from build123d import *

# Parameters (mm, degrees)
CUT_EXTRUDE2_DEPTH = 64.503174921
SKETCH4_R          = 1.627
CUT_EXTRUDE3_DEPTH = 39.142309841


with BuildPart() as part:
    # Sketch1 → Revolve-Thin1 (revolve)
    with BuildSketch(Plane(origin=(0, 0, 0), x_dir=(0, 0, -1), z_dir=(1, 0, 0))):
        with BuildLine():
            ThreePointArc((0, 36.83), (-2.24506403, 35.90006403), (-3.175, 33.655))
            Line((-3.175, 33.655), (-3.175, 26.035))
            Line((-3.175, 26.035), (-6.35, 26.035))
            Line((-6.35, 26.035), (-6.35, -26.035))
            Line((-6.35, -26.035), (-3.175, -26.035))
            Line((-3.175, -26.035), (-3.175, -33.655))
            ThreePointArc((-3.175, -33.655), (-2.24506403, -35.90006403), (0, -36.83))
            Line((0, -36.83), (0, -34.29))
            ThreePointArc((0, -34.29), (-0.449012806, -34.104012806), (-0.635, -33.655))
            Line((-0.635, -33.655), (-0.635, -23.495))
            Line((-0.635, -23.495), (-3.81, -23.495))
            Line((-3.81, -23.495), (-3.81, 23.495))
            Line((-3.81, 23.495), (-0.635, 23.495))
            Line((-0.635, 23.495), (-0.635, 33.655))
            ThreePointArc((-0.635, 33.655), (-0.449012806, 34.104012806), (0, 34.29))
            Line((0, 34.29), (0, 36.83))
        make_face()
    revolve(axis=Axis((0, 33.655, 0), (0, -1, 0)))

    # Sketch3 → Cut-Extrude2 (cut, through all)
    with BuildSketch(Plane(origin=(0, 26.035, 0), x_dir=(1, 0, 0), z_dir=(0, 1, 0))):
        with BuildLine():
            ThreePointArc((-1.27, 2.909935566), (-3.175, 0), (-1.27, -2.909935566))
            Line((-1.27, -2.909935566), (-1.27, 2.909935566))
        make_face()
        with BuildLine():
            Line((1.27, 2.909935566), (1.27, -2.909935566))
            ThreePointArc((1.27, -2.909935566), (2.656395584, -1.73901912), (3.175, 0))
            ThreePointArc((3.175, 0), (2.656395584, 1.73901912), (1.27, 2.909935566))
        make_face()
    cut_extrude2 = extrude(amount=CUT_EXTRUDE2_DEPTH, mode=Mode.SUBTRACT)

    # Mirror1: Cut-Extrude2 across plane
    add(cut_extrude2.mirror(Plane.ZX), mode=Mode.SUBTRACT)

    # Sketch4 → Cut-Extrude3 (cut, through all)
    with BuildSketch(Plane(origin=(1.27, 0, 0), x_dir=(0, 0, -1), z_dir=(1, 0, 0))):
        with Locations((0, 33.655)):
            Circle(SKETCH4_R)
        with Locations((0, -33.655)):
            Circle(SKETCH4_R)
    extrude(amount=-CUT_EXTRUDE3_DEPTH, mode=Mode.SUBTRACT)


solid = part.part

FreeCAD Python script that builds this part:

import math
import FreeCAD as App
import Part
import Sketcher
from FreeCAD import Vector
Q = App.Units.Quantity

doc = App.newDocument("Part")
body = doc.addObject("PartDesign::Body", "Body")

# Sketch on YZ plane
sketch1 = body.newObject("Sketcher::SketchObject", "Sketch")
sketch1.AttachmentSupport = (doc.getObject("YZ_Plane"), [""])
sketch1.MapMode = "FlatFace"
sketch1.addGeometry([
    Part.ArcOfCircle(Part.Circle(Vector(33.655, 0, 0), Vector(0, 0, 1), 3.175), math.radians(0), math.radians(90)),  # 0
    Part.LineSegment(Vector(33.655, 3.175, 0), Vector(26.035, 3.175, 0)),  # 1
    Part.LineSegment(Vector(26.035, 3.175, 0), Vector(26.035, 6.35, 0)),  # 2
    Part.LineSegment(Vector(26.035, 6.35, 0), Vector(-26.035, 6.35, 0)),  # 3
    Part.LineSegment(Vector(-26.035, 6.35, 0), Vector(-26.035, 3.175, 0)),  # 4
    Part.LineSegment(Vector(-26.035, 3.175, 0), Vector(-33.655, 3.175, 0)),  # 5
    Part.ArcOfCircle(Part.Circle(Vector(-33.655, 0, 0), Vector(0, 0, 1), 3.175), math.radians(90), math.radians(180)),  # 6
    Part.LineSegment(Vector(-36.83, 0, 0), Vector(-34.29, 0, 0)),  # 7
    Part.ArcOfCircle(Part.Circle(Vector(-33.655, 0, 0), Vector(0, 0, 1), 0.635), math.radians(90), math.radians(180)),  # 8
    Part.LineSegment(Vector(-33.655, 0.635, 0), Vector(-23.495, 0.635, 0)),  # 9
    Part.LineSegment(Vector(-23.495, 0.635, 0), Vector(-23.495, 3.81, 0)),  # 10
    Part.LineSegment(Vector(-23.495, 3.81, 0), Vector(23.495, 3.81, 0)),  # 11
    Part.LineSegment(Vector(23.495, 3.81, 0), Vector(23.495, 0.635, 0)),  # 12
    Part.LineSegment(Vector(23.495, 0.635, 0), Vector(33.655, 0.635, 0)),  # 13
    Part.ArcOfCircle(Part.Circle(Vector(33.655, 0, 0), Vector(0, 0, 1), 0.635), math.radians(0), math.radians(90)),  # 14
    Part.LineSegment(Vector(34.29, 0, 0), Vector(36.83, 0, 0)),  # 15
], False)
sketch1.addConstraint([
    Sketcher.Constraint("Tangent", 0, 2, 1, 1),
    Sketcher.Constraint("Coincident", 1, 2, 2, 1),
    Sketcher.Constraint("Coincident", 2, 2, 3, 1),
    Sketcher.Constraint("Coincident", 3, 2, 4, 1),
    Sketcher.Constraint("Coincident", 4, 2, 5, 1),
    Sketcher.Constraint("Tangent", 5, 2, 6, 1),
    Sketcher.Constraint("Coincident", 6, 2, 7, 1),
    Sketcher.Constraint("Coincident", 7, 2, 8, 2),
    Sketcher.Constraint("Tangent", 8, 1, 9, 1),
    Sketcher.Constraint("Coincident", 9, 2, 10, 1),
    Sketcher.Constraint("Coincident", 10, 2, 11, 1),
    Sketcher.Constraint("Coincident", 11, 2, 12, 1),
    Sketcher.Constraint("Coincident", 12, 2, 13, 1),
    Sketcher.Constraint("Tangent", 13, 2, 14, 2),
    Sketcher.Constraint("Coincident", 14, 1, 15, 1),
    Sketcher.Constraint("Coincident", 15, 2, 0, 1),
    Sketcher.Constraint("Horizontal", 1),
    Sketcher.Constraint("Vertical", 2),
    Sketcher.Constraint("Horizontal", 3),
    Sketcher.Constraint("Vertical", 4),
    Sketcher.Constraint("Horizontal", 5),
    Sketcher.Constraint("Horizontal", 7),
    Sketcher.Constraint("Horizontal", 9),
    Sketcher.Constraint("Vertical", 10),
    Sketcher.Constraint("Horizontal", 11),
    Sketcher.Constraint("Vertical", 12),
    Sketcher.Constraint("Horizontal", 13),
    Sketcher.Constraint("Horizontal", 15),
    Sketcher.Constraint("Coincident", 8, 3, 6, 3),
    Sketcher.Constraint("Coincident", 14, 3, 0, 3),
    Sketcher.Constraint("Equal", 0, 6),
    Sketcher.Constraint("Equal", 8, 14),
    Sketcher.Constraint("Symmetric", 0, 3, 6, 3, -1, 1),
    Sketcher.Constraint("Symmetric", 1, 2, 4, 2, -2),
    Sketcher.Constraint("PointOnObject", 6, 2, -1),
    Sketcher.Constraint("PointOnObject", 14, 1, -1),
    Sketcher.Constraint("Equal", 9, 13),
    Sketcher.Constraint("Equal", 4, 10),
    Sketcher.Constraint("DistanceX", 1, 2, 1, 1, Q("0.3 in")),
    Sketcher.Constraint("DistanceX", 7, 1, 7, 2, Q("0.1 in")),
    Sketcher.Constraint("DistanceX", 9, 1, 9, 2, Q("0.4 in")),
    Sketcher.Constraint("Radius", 0, Q("0.125 in")),
    Sketcher.Constraint("DistanceX", 3, 2, 3, 1, Q("2.05 in")),
    Sketcher.Constraint("DistanceY", 2, 1, 2, 2, Q("0.125 in")),
])
revolution = body.newObject("PartDesign::Revolution", "Revolution")
revolution.Profile = sketch1
revolution.ReferenceAxis = (sketch1, ["H_Axis"])
revolution.Angle = 360

# Sketch on XZ plane
sketch2 = body.newObject("Sketcher::SketchObject", "Sketch001")
sketch2.AttachmentSupport = (doc.getObject("XZ_Plane"), [""])
sketch2.MapMode = "FlatFace"
sketch2.AttachmentOffset = App.Placement(Vector(0, 0, -1.025 * 25.4), App.Rotation())
sketch2.addGeometry([
    Part.ArcOfCircle(Part.Circle(Vector(0, 0, 0), Vector(0, 0, 1), 3.175), math.radians(113.578178), math.radians(246.421822)),  # 0
    Part.LineSegment(Vector(-1.27, 2.909936, 0), Vector(-1.27, -2.909936, 0)),  # 1
    Part.LineSegment(Vector(1.27, -2.909936, 0), Vector(1.27, 2.909936, 0)),  # 2
    Part.ArcOfCircle(Part.Circle(Vector(0, 0, 0), Vector(0, 0, 1), 3.175), math.radians(0), math.radians(66.421822)),  # 3
    Part.ArcOfCircle(Part.Circle(Vector(0, 0, 0), Vector(0, 0, 1), 3.175), math.radians(-66.421822), math.radians(0)),  # 4
], False)
sketch2.addConstraint([
    Sketcher.Constraint("Coincident", 0, 1, 1, 1),
    Sketcher.Constraint("Coincident", 1, 2, 0, 2),
    Sketcher.Constraint("Coincident", 2, 2, 3, 2),
    Sketcher.Constraint("Tangent", 3, 1, 4, 2),
    Sketcher.Constraint("Coincident", 4, 1, 2, 1),
    Sketcher.Constraint("Vertical", 1),
    Sketcher.Constraint("Vertical", 2),
    Sketcher.Constraint("Coincident", 0, 3, -1, 1),
    Sketcher.Constraint("Coincident", 3, 3, -1, 1),
    Sketcher.Constraint("Equal", 0, 3),
    Sketcher.Constraint("Equal", 3, 4),
    Sketcher.Constraint("PointOnObject", 3, 1, -1),
    Sketcher.Constraint("Horizontal", 0, 1, 2, 2),
    Sketcher.Constraint("Radius", 0, Q("0.125 in")),
    Sketcher.Constraint("DistanceX", 0, 1, 2, 2, Q("0.1 in")),
])
pocket1 = body.newObject("PartDesign::Pocket", "Pocket")
pocket1.Profile = sketch2
pocket1.Type = "ThroughAll"
doc.recompute()

mirrored = body.newObject("PartDesign::Mirrored", "Mirrored")
mirrored.Originals = [pocket1]
mirrored.MirrorPlane = (doc.getObject("XZ_Plane"), [""])
body.Tip = mirrored

# Sketch on YZ plane
sketch3 = body.newObject("Sketcher::SketchObject", "Sketch002")
sketch3.AttachmentSupport = (doc.getObject("YZ_Plane"), [""])
sketch3.MapMode = "FlatFace"
sketch3.AttachmentOffset = App.Placement(Vector(0, 0, 0.05 * 25.4), App.Rotation())
sketch3.addGeometry([
    Part.Circle(Vector(33.655, 0, 0), Vector(0, 0, 1), 1.627),
    Part.Circle(Vector(-33.655, 0, 0), Vector(0, 0, 1), 1.627),
], False)
sketch3.addConstraint([
    Sketcher.Constraint("Equal", 0, 1),
    Sketcher.Constraint("Symmetric", 0, 3, 1, 3, -1, 1),
    Sketcher.Constraint("PointOnObject", 0, 3, -1),
    Sketcher.Constraint("Diameter", 0, Q("3.254 mm")),
    Sketcher.Constraint("DistanceX", 1, 3, 0, 3, Q("2.65 in")),
])
pocket2 = body.newObject("PartDesign::Pocket", "Pocket001")
pocket2.Profile = sketch3
pocket2.Type = "ThroughAll"

doc.recompute()
